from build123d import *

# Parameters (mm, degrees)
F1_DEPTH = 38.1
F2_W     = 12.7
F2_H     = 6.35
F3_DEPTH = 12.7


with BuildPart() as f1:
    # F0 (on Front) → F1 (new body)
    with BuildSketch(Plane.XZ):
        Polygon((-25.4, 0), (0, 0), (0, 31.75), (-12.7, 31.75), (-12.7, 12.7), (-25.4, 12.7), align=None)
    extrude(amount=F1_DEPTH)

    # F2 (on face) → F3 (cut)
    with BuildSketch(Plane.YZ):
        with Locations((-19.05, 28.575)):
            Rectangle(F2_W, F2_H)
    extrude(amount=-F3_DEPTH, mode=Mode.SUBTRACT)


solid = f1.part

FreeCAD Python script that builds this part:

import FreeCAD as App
import Part
import Sketcher
Q = App.Units.Quantity

doc = App.newDocument("Part")
body = doc.addObject("PartDesign::Body", "Body")

# Sketch on XZ plane
sketch1 = body.newObject("Sketcher::SketchObject", "Sketch")
sketch1.AttachmentSupport = (doc.getObject("XZ_Plane"), [""])
sketch1.MapMode = "FlatFace"
sketch1.addGeometry([
    Part.LineSegment(App.Vector(-25.4, 0, 0), App.Vector(0, 0, 0)),  # 0
    Part.LineSegment(App.Vector(0, 0, 0), App.Vector(0, 31.75, 0)),  # 1
    Part.LineSegment(App.Vector(0, 31.75, 0), App.Vector(-12.7, 31.75, 0)),  # 2
    Part.LineSegment(App.Vector(-12.7, 31.75, 0), App.Vector(-12.7, 12.7, 0)),  # 3
    Part.LineSegment(App.Vector(-12.7, 12.7, 0), App.Vector(-25.4, 12.7, 0)),  # 4
    Part.LineSegment(App.Vector(-25.4, 12.7, 0), App.Vector(-25.4, 0, 0)),  # 5
], False)
sketch1.addConstraint([
    Sketcher.Constraint("Coincident", 0, 2, 1, 1),
    Sketcher.Constraint("Coincident", 1, 2, 2, 1),
    Sketcher.Constraint("Coincident", 2, 2, 3, 1),
    Sketcher.Constraint("Coincident", 3, 2, 4, 1),
    Sketcher.Constraint("Coincident", 4, 2, 5, 1),
    Sketcher.Constraint("Coincident", 5, 2, 0, 1),
    Sketcher.Constraint("Horizontal", 0),
    Sketcher.Constraint("Vertical", 1),
    Sketcher.Constraint("Horizontal", 2),
    Sketcher.Constraint("Vertical", 3),
    Sketcher.Constraint("Horizontal", 4),
    Sketcher.Constraint("Vertical", 5),
    Sketcher.Constraint("Coincident", 0, 2, -1, 1),
    Sketcher.Constraint("Equal", 2, 4),
    Sketcher.Constraint("Equal", 4, 5),
    Sketcher.Constraint("DistanceX", 0, 1, 0, 2, Q("1 in")),
    Sketcher.Constraint("DistanceY", 1, 1, 1, 2, Q("1.25 in")),
])
pad1 = body.newObject("PartDesign::Pad", "Pad")
pad1.Profile = sketch1
pad1.Length = Q("1.5 in")

# Sketch on YZ plane
sketch2 = body.newObject("Sketcher::SketchObject", "Sketch001")
sketch2.AttachmentSupport = (doc.getObject("YZ_Plane"), [""])
sketch2.MapMode = "FlatFace"
sketch2.addGeometry([
    Part.LineSegment(App.Vector(-25.4, 31.75, 0), App.Vector(-25.4, 25.4, 0)),
    Part.LineSegment(App.Vector(-25.4, 25.4, 0), App.Vector(-12.7, 25.4, 0)),
    Part.LineSegment(App.Vector(-12.7, 25.4, 0), App.Vector(-12.7, 31.75, 0)),
    Part.LineSegment(App.Vector(-12.7, 31.75, 0), App.Vector(-25.4, 31.75, 0)),
], False)
sketch2.addConstraint([
    Sketcher.Constraint("Coincident", 0, 2, 1, 1),
    Sketcher.Constraint("Coincident", 1, 2, 2, 1),
    Sketcher.Constraint("Coincident", 2, 2, 3, 1),
    Sketcher.Constraint("Coincident", 3, 2, 0, 1),
    Sketcher.Constraint("Vertical", 0),
    Sketcher.Constraint("Horizontal", 1),
    Sketcher.Constraint("Vertical", 2),
    Sketcher.Constraint("Horizontal", 3),
    Sketcher.Constraint("DistanceX", 1, 1, 1, 2, Q("0.5 in")),
    Sketcher.Constraint("DistanceX", 0, 2, -1, 1, Q("1 in")),
    Sketcher.Constraint("DistanceY", -1, 1, 0, 2, Q("1 in")),
    Sketcher.Constraint("DistanceY", 0, 2, 0, 1, Q("0.25 in")),
])
pocket1 = body.newObject("PartDesign::Pocket", "Pocket")
pocket1.Profile = sketch2
pocket1.Length = Q("0.5 in")

doc.recompute()
